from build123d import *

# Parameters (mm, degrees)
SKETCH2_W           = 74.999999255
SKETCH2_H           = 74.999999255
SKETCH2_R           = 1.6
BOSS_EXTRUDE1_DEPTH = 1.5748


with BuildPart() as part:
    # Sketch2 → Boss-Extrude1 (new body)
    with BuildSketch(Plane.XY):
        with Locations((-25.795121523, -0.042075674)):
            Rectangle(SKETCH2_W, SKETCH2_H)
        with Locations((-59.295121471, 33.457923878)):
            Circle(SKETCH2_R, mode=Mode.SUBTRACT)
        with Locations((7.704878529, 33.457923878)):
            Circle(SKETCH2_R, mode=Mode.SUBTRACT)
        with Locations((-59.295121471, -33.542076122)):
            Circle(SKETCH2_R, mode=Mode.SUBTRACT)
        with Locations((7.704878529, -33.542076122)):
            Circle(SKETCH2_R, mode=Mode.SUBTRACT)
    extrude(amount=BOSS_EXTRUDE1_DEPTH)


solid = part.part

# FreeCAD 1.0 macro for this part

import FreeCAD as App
import Part
import Sketcher

V = App.Vector

doc = App.newDocument("Part")
body = doc.addObject("PartDesign::Body", "Body")

# Sketch on XY plane
sketch1 = body.newObject("Sketcher::SketchObject", "Sketch")
sketch1.AttachmentSupport = (doc.getObject("XY_Plane"), [""])
sketch1.MapMode = "FlatFace"
sketch1.addGeometry(Part.LineSegment(V(-63.3, 37.5, 0), V(-63.3, -37.5, 0)), False)
sketch1.addGeometry(Part.LineSegment(V(-63.3, -37.5, 0), V(11.7, -37.5, 0)), False)
sketch1.addGeometry(Part.LineSegment(V(11.7, -37.5, 0), V(11.7, 37.5, 0)), False)
sketch1.addGeometry(Part.LineSegment(V(11.7, 37.5, 0), V(-63.3, 37.5, 0)), False)
sketch1.addGeometry(Part.Circle(V(-59.3, -33.5, 0), V(0, 0, 1), 1.6), False)
sketch1.addGeometry(Part.Circle(V(7.7, -33.5, 0), V(0, 0, 1), 1.6), False)
sketch1.addGeometry(Part.Circle(V(-59.3, 33.5, 0), V(0, 0, 1), 1.6), False)
sketch1.addGeometry(Part.Circle(V(7.7, 33.5, 0), V(0, 0, 1), 1.6), False)
sketch1.addConstraint(Sketcher.Constraint("Coincident", 0, 2, 1, 1))
sketch1.addConstraint(Sketcher.Constraint("Coincident", 1, 2, 2, 1))
sketch1.addConstraint(Sketcher.Constraint("Coincident", 2, 2, 3, 1))
sketch1.addConstraint(Sketcher.Constraint("Coincident", 3, 2, 0, 1))
sketch1.addConstraint(Sketcher.Constraint("Vertical", 0))
sketch1.addConstraint(Sketcher.Constraint("Horizontal", 1))
sketch1.addConstraint(Sketcher.Constraint("Vertical", 2))
sketch1.addConstraint(Sketcher.Constraint("Horizontal", 3))
sketch1.addConstraint(Sketcher.Constraint("Equal", 4, 5))
sketch1.addConstraint(Sketcher.Constraint("Equal", 5, 6))
sketch1.addConstraint(Sketcher.Constraint("Equal", 6, 7))
sketch1.addConstraint(Sketcher.Constraint("Horizontal", 4, 3, 5, 3))
sketch1.addConstraint(Sketcher.Constraint("Horizontal", 6, 3, 7, 3))
sketch1.addConstraint(Sketcher.Constraint("Vertical", 4, 3, 6, 3))
sketch1.addConstraint(Sketcher.Constraint("Vertical", 5, 3, 7, 3))
sketch1.addConstraint(Sketcher.Constraint("Equal", 3, 0))
sketch1.addConstraint(Sketcher.Constraint("Diameter", 4, 3.2))
sketch1.addConstraint(Sketcher.Constraint("DistanceX", 1, 1, 1, 2, 74.999999))
sketch1.addConstraint(Sketcher.Constraint("DistanceX", 4, 3, 5, 3, 67.0))
sketch1.addConstraint(Sketcher.Constraint("DistanceY", 4, 3, 6, 3, 67.0))
sketch1.addConstraint(Sketcher.Constraint("DistanceX", 0, 2, 4, 3, 4.0))
sketch1.addConstraint(Sketcher.Constraint("DistanceY", 0, 2, 4, 3, 3.999999))
sketch1.addConstraint(Sketcher.Constraint("DistanceX", 4, 3, -1, 1, 59.295121))
sketch1.addConstraint(Sketcher.Constraint("DistanceY", 4, 3, -1, 1, 33.542076))
pad1 = body.newObject("PartDesign::Pad", "Pad")
pad1.Profile = sketch1
pad1.Length = 1.5748

doc.recompute()
